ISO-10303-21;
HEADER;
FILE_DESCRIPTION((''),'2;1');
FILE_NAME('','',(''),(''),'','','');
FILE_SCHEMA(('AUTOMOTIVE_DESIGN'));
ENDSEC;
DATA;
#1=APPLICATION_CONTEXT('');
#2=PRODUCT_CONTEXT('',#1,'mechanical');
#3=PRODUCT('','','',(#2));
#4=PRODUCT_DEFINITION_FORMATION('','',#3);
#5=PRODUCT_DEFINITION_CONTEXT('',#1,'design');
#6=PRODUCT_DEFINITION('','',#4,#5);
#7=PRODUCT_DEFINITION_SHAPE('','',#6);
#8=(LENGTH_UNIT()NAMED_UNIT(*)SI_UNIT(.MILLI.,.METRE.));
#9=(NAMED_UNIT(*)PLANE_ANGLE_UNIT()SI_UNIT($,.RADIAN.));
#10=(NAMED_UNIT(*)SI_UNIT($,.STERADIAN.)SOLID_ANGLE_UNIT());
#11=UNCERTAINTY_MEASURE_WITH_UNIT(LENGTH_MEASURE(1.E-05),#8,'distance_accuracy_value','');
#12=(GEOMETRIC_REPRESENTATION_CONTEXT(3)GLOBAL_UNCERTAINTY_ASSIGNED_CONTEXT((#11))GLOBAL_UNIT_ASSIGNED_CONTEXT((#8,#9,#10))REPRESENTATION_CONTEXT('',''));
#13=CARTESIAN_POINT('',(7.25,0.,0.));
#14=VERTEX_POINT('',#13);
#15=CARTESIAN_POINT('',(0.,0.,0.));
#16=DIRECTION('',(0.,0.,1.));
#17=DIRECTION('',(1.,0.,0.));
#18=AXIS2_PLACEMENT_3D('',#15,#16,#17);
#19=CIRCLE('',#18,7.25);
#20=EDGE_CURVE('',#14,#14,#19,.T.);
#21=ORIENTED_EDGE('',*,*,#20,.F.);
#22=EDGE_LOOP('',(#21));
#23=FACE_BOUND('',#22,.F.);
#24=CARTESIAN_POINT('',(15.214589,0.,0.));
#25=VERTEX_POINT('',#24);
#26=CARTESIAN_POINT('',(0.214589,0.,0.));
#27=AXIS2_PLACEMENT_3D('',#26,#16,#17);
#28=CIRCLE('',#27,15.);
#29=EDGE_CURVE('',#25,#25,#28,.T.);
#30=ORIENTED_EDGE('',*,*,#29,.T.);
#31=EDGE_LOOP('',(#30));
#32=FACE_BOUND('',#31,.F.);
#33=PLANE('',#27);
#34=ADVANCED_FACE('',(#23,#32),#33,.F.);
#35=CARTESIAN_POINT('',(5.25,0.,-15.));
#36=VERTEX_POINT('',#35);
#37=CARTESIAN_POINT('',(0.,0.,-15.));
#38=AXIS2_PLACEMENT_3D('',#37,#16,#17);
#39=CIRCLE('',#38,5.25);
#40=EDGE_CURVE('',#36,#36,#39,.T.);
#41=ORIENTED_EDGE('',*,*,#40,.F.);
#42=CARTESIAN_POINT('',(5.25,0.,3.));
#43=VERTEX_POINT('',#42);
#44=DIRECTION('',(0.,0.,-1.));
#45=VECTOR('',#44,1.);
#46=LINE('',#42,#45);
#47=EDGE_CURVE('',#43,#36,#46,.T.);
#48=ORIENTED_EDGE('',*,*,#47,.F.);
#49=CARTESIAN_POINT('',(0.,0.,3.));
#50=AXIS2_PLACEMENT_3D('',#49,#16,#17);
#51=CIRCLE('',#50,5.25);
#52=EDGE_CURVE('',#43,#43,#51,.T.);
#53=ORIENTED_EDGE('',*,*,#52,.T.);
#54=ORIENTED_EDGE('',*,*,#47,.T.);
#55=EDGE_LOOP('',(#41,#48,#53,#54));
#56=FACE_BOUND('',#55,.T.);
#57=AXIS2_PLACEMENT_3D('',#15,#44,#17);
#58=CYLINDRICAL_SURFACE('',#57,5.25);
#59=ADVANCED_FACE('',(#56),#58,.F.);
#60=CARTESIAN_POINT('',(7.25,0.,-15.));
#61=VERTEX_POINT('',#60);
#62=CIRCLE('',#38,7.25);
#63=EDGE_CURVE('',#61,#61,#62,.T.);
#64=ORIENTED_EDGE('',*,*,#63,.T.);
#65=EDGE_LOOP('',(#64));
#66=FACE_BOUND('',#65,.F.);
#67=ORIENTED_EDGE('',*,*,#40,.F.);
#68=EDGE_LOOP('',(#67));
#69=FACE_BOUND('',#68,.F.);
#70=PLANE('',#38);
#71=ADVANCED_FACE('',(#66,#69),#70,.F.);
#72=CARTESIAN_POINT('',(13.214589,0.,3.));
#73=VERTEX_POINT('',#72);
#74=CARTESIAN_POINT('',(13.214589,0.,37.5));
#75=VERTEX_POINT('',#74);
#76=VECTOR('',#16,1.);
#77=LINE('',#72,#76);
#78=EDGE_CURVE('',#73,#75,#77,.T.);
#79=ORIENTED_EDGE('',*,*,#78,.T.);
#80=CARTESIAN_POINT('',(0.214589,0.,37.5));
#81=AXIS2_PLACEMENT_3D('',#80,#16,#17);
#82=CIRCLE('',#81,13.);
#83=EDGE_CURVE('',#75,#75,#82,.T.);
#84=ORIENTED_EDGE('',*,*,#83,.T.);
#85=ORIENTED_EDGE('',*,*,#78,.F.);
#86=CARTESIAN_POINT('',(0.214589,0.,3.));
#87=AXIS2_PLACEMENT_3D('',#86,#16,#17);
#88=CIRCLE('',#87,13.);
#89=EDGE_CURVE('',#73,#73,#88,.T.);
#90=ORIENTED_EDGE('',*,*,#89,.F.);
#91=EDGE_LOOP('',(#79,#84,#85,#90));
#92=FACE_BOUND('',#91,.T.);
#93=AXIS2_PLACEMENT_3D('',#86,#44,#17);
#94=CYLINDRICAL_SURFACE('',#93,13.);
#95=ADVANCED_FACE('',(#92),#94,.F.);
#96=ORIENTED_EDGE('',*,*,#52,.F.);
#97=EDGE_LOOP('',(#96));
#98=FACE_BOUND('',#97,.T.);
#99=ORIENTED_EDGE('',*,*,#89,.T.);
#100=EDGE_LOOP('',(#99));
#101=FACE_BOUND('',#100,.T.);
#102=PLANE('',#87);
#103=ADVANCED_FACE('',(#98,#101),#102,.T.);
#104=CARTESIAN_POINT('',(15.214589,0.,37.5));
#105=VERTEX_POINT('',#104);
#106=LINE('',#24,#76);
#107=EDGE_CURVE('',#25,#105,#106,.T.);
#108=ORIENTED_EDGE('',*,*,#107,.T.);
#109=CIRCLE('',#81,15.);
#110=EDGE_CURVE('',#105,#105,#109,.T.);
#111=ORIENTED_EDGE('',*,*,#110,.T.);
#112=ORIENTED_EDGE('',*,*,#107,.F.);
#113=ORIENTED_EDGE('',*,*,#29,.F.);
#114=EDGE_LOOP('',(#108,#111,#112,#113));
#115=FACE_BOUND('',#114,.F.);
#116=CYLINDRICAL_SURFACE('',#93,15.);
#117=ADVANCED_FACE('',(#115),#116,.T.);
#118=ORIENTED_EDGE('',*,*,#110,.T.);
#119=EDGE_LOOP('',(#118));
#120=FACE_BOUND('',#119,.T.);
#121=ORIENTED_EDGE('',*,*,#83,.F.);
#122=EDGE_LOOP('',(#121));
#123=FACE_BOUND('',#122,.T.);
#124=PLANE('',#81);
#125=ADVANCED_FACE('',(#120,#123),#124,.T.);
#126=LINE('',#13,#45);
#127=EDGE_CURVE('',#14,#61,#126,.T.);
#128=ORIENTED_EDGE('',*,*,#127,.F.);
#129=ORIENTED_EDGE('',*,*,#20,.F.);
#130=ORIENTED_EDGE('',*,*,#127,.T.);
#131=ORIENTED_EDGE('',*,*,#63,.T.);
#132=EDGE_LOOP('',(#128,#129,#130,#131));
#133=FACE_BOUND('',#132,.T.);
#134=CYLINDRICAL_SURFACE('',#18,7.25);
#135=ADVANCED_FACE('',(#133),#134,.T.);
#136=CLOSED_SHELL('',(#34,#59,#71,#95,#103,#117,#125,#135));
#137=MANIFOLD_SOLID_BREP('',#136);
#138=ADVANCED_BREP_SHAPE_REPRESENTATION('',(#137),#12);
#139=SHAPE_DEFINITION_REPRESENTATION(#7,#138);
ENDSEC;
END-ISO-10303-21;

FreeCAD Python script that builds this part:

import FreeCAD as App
import Part
import Sketcher

doc = App.newDocument("Part")
body = doc.addObject("PartDesign::Body", "Body")

# Sketch on XY plane
sketch1 = body.newObject("Sketcher::SketchObject", "Sketch")
sketch1.AttachmentSupport = (doc.getObject("XY_Plane"), [""])
sketch1.MapMode = "FlatFace"
sketch1.addGeometry([
    Part.Circle(App.Vector(0, 0, 0), App.Vector(0, 0, 1), 7),
    Part.Circle(App.Vector(0, 0, 0), App.Vector(0, 0, 1), 5),
], False)
sketch1.addConstraint([
    Sketcher.Constraint("Coincident", 0, 3, -1, 1),
    Sketcher.Constraint("Coincident", 1, 3, -1, 1),
    Sketcher.Constraint("Diameter", 0, 14.5),
    Sketcher.Constraint("Diameter", 1, 10.5),
])
pad1 = body.newObject("PartDesign::Pad", "Pad")
pad1.Profile = sketch1
pad1.Length = 15
pad1.Reversed = True

# Sketch on XY plane
sketch2 = body.newObject("Sketcher::SketchObject", "Sketch001")
sketch2.AttachmentSupport = (doc.getObject("XY_Plane"), [""])
sketch2.MapMode = "FlatFace"
sketch2.addGeometry([
    Part.Circle(App.Vector(0, 0, 0), App.Vector(0, 0, 1), 15),
    Part.Circle(App.Vector(0, 0, 0), App.Vector(0, 0, 1), 5),
], False)
sketch2.addConstraint([
    Sketcher.Constraint("Coincident", 1, 3, -1, 1),
    Sketcher.Constraint("PointOnObject", 0, 3, -1),
    Sketcher.Constraint("Diameter", 0, 30.0),
    Sketcher.Constraint("Diameter", 1, 10.5),
    Sketcher.Constraint("DistanceX", -1, 1, 0, 3, 0.214589),
])
pad2 = body.newObject("PartDesign::Pad", "Pad001")
pad2.Profile = sketch2
pad2.Length = 3

# Sketch on XY plane
sketch3 = body.newObject("Sketcher::SketchObject", "Sketch002")
sketch3.AttachmentSupport = (doc.getObject("XY_Plane"), [""])
sketch3.MapMode = "FlatFace"
sketch3.AttachmentOffset = App.Placement(App.Vector(0, 0, 3), App.Rotation())
sketch3.addGeometry([
    Part.Circle(App.Vector(0, 0, 0), App.Vector(0, 0, 1), 15),
    Part.Circle(App.Vector(0, 0, 0), App.Vector(0, 0, 1), 13),
], False)
sketch3.addConstraint([
    Sketcher.Constraint("Coincident", 1, 3, 0, 3),
    Sketcher.Constraint("PointOnObject", 0, 3, -1),
    Sketcher.Constraint("Diameter", 0, 30.0),
    Sketcher.Constraint("Diameter", 1, 26.0),
    Sketcher.Constraint("DistanceX", -1, 1, 0, 3, 0.214589),
])
pad3 = body.newObject("PartDesign::Pad", "Pad002")
pad3.Profile = sketch3
pad3.Length = 34.5

doc.recompute()
